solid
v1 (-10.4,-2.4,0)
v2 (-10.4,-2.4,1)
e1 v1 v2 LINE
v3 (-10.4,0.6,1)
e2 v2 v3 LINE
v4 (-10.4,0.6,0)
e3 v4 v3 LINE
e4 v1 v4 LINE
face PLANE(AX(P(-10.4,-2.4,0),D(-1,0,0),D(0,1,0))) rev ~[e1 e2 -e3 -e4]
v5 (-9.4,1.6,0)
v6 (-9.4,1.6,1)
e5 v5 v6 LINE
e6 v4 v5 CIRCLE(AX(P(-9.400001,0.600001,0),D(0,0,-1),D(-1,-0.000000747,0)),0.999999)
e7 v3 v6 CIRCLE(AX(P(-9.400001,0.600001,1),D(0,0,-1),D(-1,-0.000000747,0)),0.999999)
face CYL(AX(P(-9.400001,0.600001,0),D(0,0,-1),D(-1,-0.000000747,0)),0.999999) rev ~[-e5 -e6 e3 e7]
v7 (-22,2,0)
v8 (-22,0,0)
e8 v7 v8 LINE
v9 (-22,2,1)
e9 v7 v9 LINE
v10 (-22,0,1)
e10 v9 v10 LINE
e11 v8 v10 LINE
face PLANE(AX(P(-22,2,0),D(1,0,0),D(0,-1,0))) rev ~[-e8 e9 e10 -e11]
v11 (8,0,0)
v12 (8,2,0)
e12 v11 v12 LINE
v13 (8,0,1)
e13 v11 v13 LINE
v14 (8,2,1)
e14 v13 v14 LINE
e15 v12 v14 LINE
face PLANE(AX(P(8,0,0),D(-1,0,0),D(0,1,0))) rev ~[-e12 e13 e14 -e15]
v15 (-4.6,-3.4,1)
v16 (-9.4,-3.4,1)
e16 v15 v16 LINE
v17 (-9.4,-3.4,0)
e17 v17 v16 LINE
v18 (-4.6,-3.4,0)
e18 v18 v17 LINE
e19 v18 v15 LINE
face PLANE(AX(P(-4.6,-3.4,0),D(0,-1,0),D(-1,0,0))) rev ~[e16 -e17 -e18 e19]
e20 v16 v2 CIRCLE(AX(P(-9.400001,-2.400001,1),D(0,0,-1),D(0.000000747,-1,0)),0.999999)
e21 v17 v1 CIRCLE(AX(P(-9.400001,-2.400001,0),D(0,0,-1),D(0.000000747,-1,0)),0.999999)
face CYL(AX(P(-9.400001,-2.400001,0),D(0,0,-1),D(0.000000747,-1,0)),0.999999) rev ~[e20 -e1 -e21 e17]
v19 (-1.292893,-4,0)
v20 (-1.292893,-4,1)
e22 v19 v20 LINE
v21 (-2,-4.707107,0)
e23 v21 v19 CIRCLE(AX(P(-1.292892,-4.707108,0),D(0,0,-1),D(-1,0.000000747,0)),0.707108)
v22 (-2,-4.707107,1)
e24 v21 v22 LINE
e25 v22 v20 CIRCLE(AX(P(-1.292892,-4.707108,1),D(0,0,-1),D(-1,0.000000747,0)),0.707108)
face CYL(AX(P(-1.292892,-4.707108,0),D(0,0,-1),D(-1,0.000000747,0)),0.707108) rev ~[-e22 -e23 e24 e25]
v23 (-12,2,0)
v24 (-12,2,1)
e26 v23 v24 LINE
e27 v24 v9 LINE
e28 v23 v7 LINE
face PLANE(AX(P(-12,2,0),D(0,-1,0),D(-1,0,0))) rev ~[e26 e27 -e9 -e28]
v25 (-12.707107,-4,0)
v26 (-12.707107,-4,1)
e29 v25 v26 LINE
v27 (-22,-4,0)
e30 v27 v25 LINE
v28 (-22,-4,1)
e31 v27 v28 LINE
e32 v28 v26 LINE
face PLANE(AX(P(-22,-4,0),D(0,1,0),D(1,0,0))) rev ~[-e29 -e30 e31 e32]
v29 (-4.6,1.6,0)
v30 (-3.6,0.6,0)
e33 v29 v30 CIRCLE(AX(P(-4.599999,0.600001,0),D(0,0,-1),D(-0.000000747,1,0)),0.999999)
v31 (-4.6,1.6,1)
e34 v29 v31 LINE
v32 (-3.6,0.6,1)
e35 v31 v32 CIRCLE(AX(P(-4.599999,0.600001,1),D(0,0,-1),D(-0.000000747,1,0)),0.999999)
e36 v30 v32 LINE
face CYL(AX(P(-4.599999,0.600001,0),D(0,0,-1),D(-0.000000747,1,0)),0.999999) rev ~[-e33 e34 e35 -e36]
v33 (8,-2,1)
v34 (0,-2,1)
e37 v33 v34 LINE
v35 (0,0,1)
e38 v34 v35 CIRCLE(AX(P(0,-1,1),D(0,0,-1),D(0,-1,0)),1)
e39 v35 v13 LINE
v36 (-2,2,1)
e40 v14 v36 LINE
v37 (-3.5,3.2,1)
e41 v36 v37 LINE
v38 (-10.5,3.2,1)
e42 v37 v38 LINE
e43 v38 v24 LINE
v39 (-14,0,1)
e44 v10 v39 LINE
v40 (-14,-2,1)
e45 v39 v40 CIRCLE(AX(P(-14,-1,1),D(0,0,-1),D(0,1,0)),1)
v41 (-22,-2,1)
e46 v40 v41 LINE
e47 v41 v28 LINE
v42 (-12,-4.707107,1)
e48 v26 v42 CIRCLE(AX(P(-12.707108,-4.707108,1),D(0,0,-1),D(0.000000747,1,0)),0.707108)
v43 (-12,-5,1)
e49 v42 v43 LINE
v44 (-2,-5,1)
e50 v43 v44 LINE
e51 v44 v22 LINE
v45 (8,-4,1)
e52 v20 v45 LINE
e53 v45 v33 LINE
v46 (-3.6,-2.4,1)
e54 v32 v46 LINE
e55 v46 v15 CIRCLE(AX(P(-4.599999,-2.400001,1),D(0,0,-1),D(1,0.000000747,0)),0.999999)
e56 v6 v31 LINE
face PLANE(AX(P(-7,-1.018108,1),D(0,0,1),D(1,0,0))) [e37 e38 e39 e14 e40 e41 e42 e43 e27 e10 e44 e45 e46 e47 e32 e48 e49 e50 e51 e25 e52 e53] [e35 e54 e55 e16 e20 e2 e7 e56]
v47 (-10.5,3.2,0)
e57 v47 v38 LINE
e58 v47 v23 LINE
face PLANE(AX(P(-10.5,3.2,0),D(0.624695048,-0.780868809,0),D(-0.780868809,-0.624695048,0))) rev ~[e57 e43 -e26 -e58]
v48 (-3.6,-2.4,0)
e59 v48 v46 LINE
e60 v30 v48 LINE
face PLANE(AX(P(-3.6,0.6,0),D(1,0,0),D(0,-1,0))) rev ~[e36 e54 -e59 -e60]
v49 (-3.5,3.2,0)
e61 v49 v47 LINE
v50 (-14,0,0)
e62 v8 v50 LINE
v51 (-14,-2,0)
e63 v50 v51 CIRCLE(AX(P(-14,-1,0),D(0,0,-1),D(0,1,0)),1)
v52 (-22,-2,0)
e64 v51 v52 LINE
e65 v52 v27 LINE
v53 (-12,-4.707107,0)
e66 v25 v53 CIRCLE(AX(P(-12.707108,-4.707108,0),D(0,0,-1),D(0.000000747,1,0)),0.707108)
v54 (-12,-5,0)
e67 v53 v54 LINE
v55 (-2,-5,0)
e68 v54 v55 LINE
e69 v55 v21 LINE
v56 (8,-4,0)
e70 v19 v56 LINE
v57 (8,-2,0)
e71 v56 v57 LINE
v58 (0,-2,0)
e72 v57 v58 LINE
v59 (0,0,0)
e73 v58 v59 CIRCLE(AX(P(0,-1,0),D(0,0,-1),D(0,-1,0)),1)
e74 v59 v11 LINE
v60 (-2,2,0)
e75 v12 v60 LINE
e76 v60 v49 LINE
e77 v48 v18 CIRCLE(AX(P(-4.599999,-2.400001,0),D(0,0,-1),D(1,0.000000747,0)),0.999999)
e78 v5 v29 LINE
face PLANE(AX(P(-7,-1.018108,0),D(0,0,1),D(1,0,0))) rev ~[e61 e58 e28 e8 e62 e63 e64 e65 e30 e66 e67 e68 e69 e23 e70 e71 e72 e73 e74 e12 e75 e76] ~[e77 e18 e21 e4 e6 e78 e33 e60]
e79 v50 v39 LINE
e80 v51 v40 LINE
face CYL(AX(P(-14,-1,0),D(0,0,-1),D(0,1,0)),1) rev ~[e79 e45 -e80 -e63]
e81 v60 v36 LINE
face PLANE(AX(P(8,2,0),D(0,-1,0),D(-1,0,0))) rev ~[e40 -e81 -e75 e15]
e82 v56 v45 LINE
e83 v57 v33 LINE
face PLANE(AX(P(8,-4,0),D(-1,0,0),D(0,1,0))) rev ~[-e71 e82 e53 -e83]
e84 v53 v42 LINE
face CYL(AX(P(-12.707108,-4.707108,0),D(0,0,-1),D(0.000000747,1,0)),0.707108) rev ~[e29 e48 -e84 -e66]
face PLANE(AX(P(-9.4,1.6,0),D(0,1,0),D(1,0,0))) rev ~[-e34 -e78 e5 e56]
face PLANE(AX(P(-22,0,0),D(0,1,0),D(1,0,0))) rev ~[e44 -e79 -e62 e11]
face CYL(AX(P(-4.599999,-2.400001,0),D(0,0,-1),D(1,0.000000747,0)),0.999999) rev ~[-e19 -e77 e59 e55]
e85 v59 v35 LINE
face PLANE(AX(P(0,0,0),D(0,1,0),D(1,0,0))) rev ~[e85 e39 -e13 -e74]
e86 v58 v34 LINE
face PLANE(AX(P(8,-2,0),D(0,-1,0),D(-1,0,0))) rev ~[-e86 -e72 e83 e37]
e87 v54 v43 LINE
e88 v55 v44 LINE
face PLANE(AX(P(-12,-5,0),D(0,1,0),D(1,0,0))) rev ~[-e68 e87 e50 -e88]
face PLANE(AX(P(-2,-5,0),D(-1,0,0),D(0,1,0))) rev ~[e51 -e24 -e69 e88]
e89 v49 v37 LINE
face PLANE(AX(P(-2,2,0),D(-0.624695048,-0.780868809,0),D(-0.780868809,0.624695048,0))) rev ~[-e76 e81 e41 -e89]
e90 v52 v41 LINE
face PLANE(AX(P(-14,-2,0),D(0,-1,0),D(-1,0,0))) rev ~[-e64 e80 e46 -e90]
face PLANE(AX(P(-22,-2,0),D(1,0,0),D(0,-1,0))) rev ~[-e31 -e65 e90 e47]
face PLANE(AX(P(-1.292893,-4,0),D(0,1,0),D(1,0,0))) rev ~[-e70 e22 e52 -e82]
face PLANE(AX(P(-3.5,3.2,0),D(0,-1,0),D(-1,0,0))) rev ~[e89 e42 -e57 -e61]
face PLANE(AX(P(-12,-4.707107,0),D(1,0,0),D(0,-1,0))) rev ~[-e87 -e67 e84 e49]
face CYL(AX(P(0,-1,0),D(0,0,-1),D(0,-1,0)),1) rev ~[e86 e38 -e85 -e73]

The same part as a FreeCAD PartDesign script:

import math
import FreeCAD as App
import Part
import Sketcher
Q = App.Units.Quantity

doc = App.newDocument("Part")
params = doc.addObject("Spreadsheet::Sheet", "Params")
for row, (alias, value) in enumerate([
    ("sketch1_radius", "1 mm"),
    ("sketch1_width", "8 mm"),
    ("sketch1_width2", "10 mm"),
    ("sketch1_width3", "7 mm"),
    ("sketch1_height", "3 mm"),
    ("pad1_length", "1 mm"),
], start=1):
    params.set(f"A{row}", alias)
    params.set(f"B{row}", "=" + value)
    params.setAlias(f"B{row}", alias)

body = doc.addObject("PartDesign::Body", "Body")

# Sketch on XY plane
sketch1 = body.newObject("Sketcher::SketchObject", "Sketch")
sketch1.AttachmentSupport = (doc.getObject("XY_Plane"), [""])
sketch1.MapMode = "FlatFace"
sketch1.addGeometry([
    Part.ArcOfCircle(Part.Circle(App.Vector(0, -1, 0), App.Vector(0, 0, 1), 1), math.radians(90), math.radians(270)),  # 0
    Part.LineSegment(App.Vector(0, 0, 0), App.Vector(8, 0, 0)),  # 1
    Part.LineSegment(App.Vector(8, 0, 0), App.Vector(8, 2, 0)),  # 2
    Part.LineSegment(App.Vector(8, 2, 0), App.Vector(-2, 2, 0)),  # 3
    Part.LineSegment(App.Vector(-2, 2, 0), App.Vector(-3.5, 3.2, 0)),  # 4
    Part.LineSegment(App.Vector(-3.5, 3.2, 0), App.Vector(-10.5, 3.2, 0)),  # 5
    Part.LineSegment(App.Vector(-10.5, 3.2, 0), App.Vector(-12, 2, 0)),  # 6
    Part.LineSegment(App.Vector(-12, 2, 0), App.Vector(-22, 2, 0)),  # 7
    Part.LineSegment(App.Vector(-22, 2, 0), App.Vector(-22, 0, 0)),  # 8
    Part.LineSegment(App.Vector(-22, 0, 0), App.Vector(-14, 0, 0)),  # 9
    Part.ArcOfCircle(Part.Circle(App.Vector(-14, -1, 0), App.Vector(0, 0, 1), 1), math.radians(-90), math.radians(90)),  # 10
    Part.LineSegment(App.Vector(-14, -2, 0), App.Vector(-22, -2, 0)),  # 11
    Part.LineSegment(App.Vector(-22, -2, 0), App.Vector(-22, -4, 0)),  # 12
    Part.LineSegment(App.Vector(-22, -4, 0), App.Vector(-12.71, -4, 0)),  # 13
    Part.ArcOfCircle(Part.Circle(App.Vector(-12.71, -4.71, 0), App.Vector(0, 0, 1), 0.71), math.radians(0), math.radians(90)),  # 14
    Part.LineSegment(App.Vector(-12, -4.71, 0), App.Vector(-12, -5, 0)),  # 15
    Part.LineSegment(App.Vector(-12, -5, 0), App.Vector(-2, -5, 0)),  # 16
    Part.LineSegment(App.Vector(-2, -5, 0), App.Vector(-2, -4.71, 0)),  # 17
    Part.ArcOfCircle(Part.Circle(App.Vector(-1.29, -4.71, 0), App.Vector(0, 0, 1), 0.71), math.radians(90), math.radians(180)),  # 18
    Part.LineSegment(App.Vector(-1.29, -4, 0), App.Vector(8, -4, 0)),  # 19
    Part.LineSegment(App.Vector(8, -4, 0), App.Vector(8, -2, 0)),  # 20
    Part.LineSegment(App.Vector(8, -2, 0), App.Vector(0, -2, 0)),  # 21
    Part.ArcOfCircle(Part.Circle(App.Vector(-4.6, -2.4, 0), App.Vector(0, 0, 1), 1), math.radians(-90), math.radians(0)),  # 22
    Part.LineSegment(App.Vector(-4.6, -3.4, 0), App.Vector(-9.4, -3.4, 0)),  # 23
    Part.ArcOfCircle(Part.Circle(App.Vector(-9.4, -2.4, 0), App.Vector(0, 0, 1), 1), math.radians(180), math.radians(270)),  # 24
    Part.LineSegment(App.Vector(-10.4, -2.4, 0), App.Vector(-10.4, 0.6, 0)),  # 25
    Part.ArcOfCircle(Part.Circle(App.Vector(-9.4, 0.6, 0), App.Vector(0, 0, 1), 1), math.radians(90), math.radians(180)),  # 26
    Part.LineSegment(App.Vector(-9.4, 1.6, 0), App.Vector(-4.6, 1.6, 0)),  # 27
    Part.ArcOfCircle(Part.Circle(App.Vector(-4.6, 0.6, 0), App.Vector(0, 0, 1), 1), math.radians(0), math.radians(90)),  # 28
    Part.LineSegment(App.Vector(-3.6, 0.6, 0), App.Vector(-3.6, -2.4, 0)),  # 29
], False)
sketch1.addConstraint([
    Sketcher.Constraint("Tangent", 0, 1, 1, 1),
    Sketcher.Constraint("Coincident", 1, 2, 2, 1),
    Sketcher.Constraint("Coincident", 2, 2, 3, 1),
    Sketcher.Constraint("Coincident", 3, 2, 4, 1),
    Sketcher.Constraint("Coincident", 4, 2, 5, 1),
    Sketcher.Constraint("Coincident", 5, 2, 6, 1),
    Sketcher.Constraint("Coincident", 6, 2, 7, 1),
    Sketcher.Constraint("Coincident", 7, 2, 8, 1),
    Sketcher.Constraint("Coincident", 8, 2, 9, 1),
    Sketcher.Constraint("Tangent", 9, 2, 10, 2),
    Sketcher.Constraint("Tangent", 10, 1, 11, 1),
    Sketcher.Constraint("Coincident", 11, 2, 12, 1),
    Sketcher.Constraint("Coincident", 12, 2, 13, 1),
    Sketcher.Constraint("Tangent", 13, 2, 14, 2),
    Sketcher.Constraint("Tangent", 14, 1, 15, 1),
    Sketcher.Constraint("Coincident", 15, 2, 16, 1),
    Sketcher.Constraint("Coincident", 16, 2, 17, 1),
    Sketcher.Constraint("Tangent", 17, 2, 18, 2),
    Sketcher.Constraint("Tangent", 18, 1, 19, 1),
    Sketcher.Constraint("Coincident", 19, 2, 20, 1),
    Sketcher.Constraint("Coincident", 20, 2, 21, 1),
    Sketcher.Constraint("Tangent", 21, 2, 0, 2),
    Sketcher.Constraint("Tangent", 22, 1, 23, 1),
    Sketcher.Constraint("Tangent", 23, 2, 24, 2),
    Sketcher.Constraint("Tangent", 24, 1, 25, 1),
    Sketcher.Constraint("Tangent", 25, 2, 26, 2),
    Sketcher.Constraint("Tangent", 26, 1, 27, 1),
    Sketcher.Constraint("Tangent", 27, 2, 28, 2),
    Sketcher.Constraint("Tangent", 28, 1, 29, 1),
    Sketcher.Constraint("Tangent", 29, 2, 22, 2),
    Sketcher.Constraint("Horizontal", 1),
    Sketcher.Constraint("Vertical", 2),
    Sketcher.Constraint("Horizontal", 3),
    Sketcher.Constraint("Horizontal", 5),
    Sketcher.Constraint("Horizontal", 7),
    Sketcher.Constraint("Vertical", 8),
    Sketcher.Constraint("Horizontal", 9),
    Sketcher.Constraint("Horizontal", 11),
    Sketcher.Constraint("Vertical", 12),
    Sketcher.Constraint("Horizontal", 13),
    Sketcher.Constraint("Vertical", 15),
    Sketcher.Constraint("Horizontal", 16),
    Sketcher.Constraint("Vertical", 17),
    Sketcher.Constraint("Horizontal", 19),
    Sketcher.Constraint("Vertical", 20),
    Sketcher.Constraint("Horizontal", 21),
    Sketcher.Constraint("Horizontal", 23),
    Sketcher.Constraint("Vertical", 25),
    Sketcher.Constraint("Horizontal", 27),
    Sketcher.Constraint("Vertical", 29),
    Sketcher.Constraint("Coincident", 0, 1, -1, 1),
    Sketcher.Constraint("Equal", 0, 10),
    Sketcher.Constraint("Equal", 14, 18),
    Sketcher.Constraint("Equal", 10, 22),
    Sketcher.Constraint("Equal", 22, 24),
    Sketcher.Constraint("Equal", 24, 26),
    Sketcher.Constraint("Equal", 26, 28),
    Sketcher.Constraint("Symmetric", 7, 2, 11, 2, -1),
    Sketcher.Constraint("Symmetric", 2, 2, 20, 2, -1),
    Sketcher.Constraint("PointOnObject", 8, 2, -1),
    Sketcher.Constraint("Horizontal", 14, 3, 18, 3),
    Sketcher.Constraint("Vertical", 6, 2, 14, 1),
    Sketcher.Constraint("Vertical", 3, 2, 16, 2),
    Sketcher.Constraint("Equal", 3, 7),
    Sketcher.Constraint("Equal", 1, 9),
    Sketcher.Constraint("Equal", 7, 16),
    Sketcher.Constraint("Equal", 8, 12),
    Sketcher.Constraint("Equal", 4, 6),
    Sketcher.Constraint("Radius", 0, Q("1 mm")),
    Sketcher.Constraint("DistanceX", 1, 1, 1, 2, Q("8 mm")),
    Sketcher.Constraint("DistanceX", 3, 2, 3, 1, Q("10 mm")),
    Sketcher.Constraint("DistanceX", 5, 2, 5, 1, Q("7 mm")),
    Sketcher.Constraint("DistanceY", 25, 1, 25, 2, Q("3 mm")),
    Sketcher.Constraint("DistanceX", 23, 2, 23, 1, Q("4.8 mm")),
    Sketcher.Constraint("DistanceY", 15, 2, -1, 1, Q("5 mm")),
    Sketcher.Constraint("DistanceX", 22, 3, -1, 1, Q("4.599999 mm")),
    Sketcher.Constraint("DistanceY", 22, 3, -1, 1, Q("2.400001 mm")),
    Sketcher.Constraint("DistanceY", -1, 1, 4, 2, Q("3.2 mm")),
    Sketcher.Constraint("Radius", 14, Q("0.707108 mm")),
])
sketch1.setExpression("Constraints[68]", "Params.sketch1_radius")
sketch1.setExpression("Constraints[69]", "Params.sketch1_width")
sketch1.setExpression("Constraints[70]", "Params.sketch1_width2")
sketch1.setExpression("Constraints[71]", "Params.sketch1_width3")
sketch1.setExpression("Constraints[72]", "Params.sketch1_height")
pad1 = body.newObject("PartDesign::Pad", "Pad")
pad1.Profile = sketch1
pad1.setExpression("Length", "Params.pad1_length")

doc.recompute()
